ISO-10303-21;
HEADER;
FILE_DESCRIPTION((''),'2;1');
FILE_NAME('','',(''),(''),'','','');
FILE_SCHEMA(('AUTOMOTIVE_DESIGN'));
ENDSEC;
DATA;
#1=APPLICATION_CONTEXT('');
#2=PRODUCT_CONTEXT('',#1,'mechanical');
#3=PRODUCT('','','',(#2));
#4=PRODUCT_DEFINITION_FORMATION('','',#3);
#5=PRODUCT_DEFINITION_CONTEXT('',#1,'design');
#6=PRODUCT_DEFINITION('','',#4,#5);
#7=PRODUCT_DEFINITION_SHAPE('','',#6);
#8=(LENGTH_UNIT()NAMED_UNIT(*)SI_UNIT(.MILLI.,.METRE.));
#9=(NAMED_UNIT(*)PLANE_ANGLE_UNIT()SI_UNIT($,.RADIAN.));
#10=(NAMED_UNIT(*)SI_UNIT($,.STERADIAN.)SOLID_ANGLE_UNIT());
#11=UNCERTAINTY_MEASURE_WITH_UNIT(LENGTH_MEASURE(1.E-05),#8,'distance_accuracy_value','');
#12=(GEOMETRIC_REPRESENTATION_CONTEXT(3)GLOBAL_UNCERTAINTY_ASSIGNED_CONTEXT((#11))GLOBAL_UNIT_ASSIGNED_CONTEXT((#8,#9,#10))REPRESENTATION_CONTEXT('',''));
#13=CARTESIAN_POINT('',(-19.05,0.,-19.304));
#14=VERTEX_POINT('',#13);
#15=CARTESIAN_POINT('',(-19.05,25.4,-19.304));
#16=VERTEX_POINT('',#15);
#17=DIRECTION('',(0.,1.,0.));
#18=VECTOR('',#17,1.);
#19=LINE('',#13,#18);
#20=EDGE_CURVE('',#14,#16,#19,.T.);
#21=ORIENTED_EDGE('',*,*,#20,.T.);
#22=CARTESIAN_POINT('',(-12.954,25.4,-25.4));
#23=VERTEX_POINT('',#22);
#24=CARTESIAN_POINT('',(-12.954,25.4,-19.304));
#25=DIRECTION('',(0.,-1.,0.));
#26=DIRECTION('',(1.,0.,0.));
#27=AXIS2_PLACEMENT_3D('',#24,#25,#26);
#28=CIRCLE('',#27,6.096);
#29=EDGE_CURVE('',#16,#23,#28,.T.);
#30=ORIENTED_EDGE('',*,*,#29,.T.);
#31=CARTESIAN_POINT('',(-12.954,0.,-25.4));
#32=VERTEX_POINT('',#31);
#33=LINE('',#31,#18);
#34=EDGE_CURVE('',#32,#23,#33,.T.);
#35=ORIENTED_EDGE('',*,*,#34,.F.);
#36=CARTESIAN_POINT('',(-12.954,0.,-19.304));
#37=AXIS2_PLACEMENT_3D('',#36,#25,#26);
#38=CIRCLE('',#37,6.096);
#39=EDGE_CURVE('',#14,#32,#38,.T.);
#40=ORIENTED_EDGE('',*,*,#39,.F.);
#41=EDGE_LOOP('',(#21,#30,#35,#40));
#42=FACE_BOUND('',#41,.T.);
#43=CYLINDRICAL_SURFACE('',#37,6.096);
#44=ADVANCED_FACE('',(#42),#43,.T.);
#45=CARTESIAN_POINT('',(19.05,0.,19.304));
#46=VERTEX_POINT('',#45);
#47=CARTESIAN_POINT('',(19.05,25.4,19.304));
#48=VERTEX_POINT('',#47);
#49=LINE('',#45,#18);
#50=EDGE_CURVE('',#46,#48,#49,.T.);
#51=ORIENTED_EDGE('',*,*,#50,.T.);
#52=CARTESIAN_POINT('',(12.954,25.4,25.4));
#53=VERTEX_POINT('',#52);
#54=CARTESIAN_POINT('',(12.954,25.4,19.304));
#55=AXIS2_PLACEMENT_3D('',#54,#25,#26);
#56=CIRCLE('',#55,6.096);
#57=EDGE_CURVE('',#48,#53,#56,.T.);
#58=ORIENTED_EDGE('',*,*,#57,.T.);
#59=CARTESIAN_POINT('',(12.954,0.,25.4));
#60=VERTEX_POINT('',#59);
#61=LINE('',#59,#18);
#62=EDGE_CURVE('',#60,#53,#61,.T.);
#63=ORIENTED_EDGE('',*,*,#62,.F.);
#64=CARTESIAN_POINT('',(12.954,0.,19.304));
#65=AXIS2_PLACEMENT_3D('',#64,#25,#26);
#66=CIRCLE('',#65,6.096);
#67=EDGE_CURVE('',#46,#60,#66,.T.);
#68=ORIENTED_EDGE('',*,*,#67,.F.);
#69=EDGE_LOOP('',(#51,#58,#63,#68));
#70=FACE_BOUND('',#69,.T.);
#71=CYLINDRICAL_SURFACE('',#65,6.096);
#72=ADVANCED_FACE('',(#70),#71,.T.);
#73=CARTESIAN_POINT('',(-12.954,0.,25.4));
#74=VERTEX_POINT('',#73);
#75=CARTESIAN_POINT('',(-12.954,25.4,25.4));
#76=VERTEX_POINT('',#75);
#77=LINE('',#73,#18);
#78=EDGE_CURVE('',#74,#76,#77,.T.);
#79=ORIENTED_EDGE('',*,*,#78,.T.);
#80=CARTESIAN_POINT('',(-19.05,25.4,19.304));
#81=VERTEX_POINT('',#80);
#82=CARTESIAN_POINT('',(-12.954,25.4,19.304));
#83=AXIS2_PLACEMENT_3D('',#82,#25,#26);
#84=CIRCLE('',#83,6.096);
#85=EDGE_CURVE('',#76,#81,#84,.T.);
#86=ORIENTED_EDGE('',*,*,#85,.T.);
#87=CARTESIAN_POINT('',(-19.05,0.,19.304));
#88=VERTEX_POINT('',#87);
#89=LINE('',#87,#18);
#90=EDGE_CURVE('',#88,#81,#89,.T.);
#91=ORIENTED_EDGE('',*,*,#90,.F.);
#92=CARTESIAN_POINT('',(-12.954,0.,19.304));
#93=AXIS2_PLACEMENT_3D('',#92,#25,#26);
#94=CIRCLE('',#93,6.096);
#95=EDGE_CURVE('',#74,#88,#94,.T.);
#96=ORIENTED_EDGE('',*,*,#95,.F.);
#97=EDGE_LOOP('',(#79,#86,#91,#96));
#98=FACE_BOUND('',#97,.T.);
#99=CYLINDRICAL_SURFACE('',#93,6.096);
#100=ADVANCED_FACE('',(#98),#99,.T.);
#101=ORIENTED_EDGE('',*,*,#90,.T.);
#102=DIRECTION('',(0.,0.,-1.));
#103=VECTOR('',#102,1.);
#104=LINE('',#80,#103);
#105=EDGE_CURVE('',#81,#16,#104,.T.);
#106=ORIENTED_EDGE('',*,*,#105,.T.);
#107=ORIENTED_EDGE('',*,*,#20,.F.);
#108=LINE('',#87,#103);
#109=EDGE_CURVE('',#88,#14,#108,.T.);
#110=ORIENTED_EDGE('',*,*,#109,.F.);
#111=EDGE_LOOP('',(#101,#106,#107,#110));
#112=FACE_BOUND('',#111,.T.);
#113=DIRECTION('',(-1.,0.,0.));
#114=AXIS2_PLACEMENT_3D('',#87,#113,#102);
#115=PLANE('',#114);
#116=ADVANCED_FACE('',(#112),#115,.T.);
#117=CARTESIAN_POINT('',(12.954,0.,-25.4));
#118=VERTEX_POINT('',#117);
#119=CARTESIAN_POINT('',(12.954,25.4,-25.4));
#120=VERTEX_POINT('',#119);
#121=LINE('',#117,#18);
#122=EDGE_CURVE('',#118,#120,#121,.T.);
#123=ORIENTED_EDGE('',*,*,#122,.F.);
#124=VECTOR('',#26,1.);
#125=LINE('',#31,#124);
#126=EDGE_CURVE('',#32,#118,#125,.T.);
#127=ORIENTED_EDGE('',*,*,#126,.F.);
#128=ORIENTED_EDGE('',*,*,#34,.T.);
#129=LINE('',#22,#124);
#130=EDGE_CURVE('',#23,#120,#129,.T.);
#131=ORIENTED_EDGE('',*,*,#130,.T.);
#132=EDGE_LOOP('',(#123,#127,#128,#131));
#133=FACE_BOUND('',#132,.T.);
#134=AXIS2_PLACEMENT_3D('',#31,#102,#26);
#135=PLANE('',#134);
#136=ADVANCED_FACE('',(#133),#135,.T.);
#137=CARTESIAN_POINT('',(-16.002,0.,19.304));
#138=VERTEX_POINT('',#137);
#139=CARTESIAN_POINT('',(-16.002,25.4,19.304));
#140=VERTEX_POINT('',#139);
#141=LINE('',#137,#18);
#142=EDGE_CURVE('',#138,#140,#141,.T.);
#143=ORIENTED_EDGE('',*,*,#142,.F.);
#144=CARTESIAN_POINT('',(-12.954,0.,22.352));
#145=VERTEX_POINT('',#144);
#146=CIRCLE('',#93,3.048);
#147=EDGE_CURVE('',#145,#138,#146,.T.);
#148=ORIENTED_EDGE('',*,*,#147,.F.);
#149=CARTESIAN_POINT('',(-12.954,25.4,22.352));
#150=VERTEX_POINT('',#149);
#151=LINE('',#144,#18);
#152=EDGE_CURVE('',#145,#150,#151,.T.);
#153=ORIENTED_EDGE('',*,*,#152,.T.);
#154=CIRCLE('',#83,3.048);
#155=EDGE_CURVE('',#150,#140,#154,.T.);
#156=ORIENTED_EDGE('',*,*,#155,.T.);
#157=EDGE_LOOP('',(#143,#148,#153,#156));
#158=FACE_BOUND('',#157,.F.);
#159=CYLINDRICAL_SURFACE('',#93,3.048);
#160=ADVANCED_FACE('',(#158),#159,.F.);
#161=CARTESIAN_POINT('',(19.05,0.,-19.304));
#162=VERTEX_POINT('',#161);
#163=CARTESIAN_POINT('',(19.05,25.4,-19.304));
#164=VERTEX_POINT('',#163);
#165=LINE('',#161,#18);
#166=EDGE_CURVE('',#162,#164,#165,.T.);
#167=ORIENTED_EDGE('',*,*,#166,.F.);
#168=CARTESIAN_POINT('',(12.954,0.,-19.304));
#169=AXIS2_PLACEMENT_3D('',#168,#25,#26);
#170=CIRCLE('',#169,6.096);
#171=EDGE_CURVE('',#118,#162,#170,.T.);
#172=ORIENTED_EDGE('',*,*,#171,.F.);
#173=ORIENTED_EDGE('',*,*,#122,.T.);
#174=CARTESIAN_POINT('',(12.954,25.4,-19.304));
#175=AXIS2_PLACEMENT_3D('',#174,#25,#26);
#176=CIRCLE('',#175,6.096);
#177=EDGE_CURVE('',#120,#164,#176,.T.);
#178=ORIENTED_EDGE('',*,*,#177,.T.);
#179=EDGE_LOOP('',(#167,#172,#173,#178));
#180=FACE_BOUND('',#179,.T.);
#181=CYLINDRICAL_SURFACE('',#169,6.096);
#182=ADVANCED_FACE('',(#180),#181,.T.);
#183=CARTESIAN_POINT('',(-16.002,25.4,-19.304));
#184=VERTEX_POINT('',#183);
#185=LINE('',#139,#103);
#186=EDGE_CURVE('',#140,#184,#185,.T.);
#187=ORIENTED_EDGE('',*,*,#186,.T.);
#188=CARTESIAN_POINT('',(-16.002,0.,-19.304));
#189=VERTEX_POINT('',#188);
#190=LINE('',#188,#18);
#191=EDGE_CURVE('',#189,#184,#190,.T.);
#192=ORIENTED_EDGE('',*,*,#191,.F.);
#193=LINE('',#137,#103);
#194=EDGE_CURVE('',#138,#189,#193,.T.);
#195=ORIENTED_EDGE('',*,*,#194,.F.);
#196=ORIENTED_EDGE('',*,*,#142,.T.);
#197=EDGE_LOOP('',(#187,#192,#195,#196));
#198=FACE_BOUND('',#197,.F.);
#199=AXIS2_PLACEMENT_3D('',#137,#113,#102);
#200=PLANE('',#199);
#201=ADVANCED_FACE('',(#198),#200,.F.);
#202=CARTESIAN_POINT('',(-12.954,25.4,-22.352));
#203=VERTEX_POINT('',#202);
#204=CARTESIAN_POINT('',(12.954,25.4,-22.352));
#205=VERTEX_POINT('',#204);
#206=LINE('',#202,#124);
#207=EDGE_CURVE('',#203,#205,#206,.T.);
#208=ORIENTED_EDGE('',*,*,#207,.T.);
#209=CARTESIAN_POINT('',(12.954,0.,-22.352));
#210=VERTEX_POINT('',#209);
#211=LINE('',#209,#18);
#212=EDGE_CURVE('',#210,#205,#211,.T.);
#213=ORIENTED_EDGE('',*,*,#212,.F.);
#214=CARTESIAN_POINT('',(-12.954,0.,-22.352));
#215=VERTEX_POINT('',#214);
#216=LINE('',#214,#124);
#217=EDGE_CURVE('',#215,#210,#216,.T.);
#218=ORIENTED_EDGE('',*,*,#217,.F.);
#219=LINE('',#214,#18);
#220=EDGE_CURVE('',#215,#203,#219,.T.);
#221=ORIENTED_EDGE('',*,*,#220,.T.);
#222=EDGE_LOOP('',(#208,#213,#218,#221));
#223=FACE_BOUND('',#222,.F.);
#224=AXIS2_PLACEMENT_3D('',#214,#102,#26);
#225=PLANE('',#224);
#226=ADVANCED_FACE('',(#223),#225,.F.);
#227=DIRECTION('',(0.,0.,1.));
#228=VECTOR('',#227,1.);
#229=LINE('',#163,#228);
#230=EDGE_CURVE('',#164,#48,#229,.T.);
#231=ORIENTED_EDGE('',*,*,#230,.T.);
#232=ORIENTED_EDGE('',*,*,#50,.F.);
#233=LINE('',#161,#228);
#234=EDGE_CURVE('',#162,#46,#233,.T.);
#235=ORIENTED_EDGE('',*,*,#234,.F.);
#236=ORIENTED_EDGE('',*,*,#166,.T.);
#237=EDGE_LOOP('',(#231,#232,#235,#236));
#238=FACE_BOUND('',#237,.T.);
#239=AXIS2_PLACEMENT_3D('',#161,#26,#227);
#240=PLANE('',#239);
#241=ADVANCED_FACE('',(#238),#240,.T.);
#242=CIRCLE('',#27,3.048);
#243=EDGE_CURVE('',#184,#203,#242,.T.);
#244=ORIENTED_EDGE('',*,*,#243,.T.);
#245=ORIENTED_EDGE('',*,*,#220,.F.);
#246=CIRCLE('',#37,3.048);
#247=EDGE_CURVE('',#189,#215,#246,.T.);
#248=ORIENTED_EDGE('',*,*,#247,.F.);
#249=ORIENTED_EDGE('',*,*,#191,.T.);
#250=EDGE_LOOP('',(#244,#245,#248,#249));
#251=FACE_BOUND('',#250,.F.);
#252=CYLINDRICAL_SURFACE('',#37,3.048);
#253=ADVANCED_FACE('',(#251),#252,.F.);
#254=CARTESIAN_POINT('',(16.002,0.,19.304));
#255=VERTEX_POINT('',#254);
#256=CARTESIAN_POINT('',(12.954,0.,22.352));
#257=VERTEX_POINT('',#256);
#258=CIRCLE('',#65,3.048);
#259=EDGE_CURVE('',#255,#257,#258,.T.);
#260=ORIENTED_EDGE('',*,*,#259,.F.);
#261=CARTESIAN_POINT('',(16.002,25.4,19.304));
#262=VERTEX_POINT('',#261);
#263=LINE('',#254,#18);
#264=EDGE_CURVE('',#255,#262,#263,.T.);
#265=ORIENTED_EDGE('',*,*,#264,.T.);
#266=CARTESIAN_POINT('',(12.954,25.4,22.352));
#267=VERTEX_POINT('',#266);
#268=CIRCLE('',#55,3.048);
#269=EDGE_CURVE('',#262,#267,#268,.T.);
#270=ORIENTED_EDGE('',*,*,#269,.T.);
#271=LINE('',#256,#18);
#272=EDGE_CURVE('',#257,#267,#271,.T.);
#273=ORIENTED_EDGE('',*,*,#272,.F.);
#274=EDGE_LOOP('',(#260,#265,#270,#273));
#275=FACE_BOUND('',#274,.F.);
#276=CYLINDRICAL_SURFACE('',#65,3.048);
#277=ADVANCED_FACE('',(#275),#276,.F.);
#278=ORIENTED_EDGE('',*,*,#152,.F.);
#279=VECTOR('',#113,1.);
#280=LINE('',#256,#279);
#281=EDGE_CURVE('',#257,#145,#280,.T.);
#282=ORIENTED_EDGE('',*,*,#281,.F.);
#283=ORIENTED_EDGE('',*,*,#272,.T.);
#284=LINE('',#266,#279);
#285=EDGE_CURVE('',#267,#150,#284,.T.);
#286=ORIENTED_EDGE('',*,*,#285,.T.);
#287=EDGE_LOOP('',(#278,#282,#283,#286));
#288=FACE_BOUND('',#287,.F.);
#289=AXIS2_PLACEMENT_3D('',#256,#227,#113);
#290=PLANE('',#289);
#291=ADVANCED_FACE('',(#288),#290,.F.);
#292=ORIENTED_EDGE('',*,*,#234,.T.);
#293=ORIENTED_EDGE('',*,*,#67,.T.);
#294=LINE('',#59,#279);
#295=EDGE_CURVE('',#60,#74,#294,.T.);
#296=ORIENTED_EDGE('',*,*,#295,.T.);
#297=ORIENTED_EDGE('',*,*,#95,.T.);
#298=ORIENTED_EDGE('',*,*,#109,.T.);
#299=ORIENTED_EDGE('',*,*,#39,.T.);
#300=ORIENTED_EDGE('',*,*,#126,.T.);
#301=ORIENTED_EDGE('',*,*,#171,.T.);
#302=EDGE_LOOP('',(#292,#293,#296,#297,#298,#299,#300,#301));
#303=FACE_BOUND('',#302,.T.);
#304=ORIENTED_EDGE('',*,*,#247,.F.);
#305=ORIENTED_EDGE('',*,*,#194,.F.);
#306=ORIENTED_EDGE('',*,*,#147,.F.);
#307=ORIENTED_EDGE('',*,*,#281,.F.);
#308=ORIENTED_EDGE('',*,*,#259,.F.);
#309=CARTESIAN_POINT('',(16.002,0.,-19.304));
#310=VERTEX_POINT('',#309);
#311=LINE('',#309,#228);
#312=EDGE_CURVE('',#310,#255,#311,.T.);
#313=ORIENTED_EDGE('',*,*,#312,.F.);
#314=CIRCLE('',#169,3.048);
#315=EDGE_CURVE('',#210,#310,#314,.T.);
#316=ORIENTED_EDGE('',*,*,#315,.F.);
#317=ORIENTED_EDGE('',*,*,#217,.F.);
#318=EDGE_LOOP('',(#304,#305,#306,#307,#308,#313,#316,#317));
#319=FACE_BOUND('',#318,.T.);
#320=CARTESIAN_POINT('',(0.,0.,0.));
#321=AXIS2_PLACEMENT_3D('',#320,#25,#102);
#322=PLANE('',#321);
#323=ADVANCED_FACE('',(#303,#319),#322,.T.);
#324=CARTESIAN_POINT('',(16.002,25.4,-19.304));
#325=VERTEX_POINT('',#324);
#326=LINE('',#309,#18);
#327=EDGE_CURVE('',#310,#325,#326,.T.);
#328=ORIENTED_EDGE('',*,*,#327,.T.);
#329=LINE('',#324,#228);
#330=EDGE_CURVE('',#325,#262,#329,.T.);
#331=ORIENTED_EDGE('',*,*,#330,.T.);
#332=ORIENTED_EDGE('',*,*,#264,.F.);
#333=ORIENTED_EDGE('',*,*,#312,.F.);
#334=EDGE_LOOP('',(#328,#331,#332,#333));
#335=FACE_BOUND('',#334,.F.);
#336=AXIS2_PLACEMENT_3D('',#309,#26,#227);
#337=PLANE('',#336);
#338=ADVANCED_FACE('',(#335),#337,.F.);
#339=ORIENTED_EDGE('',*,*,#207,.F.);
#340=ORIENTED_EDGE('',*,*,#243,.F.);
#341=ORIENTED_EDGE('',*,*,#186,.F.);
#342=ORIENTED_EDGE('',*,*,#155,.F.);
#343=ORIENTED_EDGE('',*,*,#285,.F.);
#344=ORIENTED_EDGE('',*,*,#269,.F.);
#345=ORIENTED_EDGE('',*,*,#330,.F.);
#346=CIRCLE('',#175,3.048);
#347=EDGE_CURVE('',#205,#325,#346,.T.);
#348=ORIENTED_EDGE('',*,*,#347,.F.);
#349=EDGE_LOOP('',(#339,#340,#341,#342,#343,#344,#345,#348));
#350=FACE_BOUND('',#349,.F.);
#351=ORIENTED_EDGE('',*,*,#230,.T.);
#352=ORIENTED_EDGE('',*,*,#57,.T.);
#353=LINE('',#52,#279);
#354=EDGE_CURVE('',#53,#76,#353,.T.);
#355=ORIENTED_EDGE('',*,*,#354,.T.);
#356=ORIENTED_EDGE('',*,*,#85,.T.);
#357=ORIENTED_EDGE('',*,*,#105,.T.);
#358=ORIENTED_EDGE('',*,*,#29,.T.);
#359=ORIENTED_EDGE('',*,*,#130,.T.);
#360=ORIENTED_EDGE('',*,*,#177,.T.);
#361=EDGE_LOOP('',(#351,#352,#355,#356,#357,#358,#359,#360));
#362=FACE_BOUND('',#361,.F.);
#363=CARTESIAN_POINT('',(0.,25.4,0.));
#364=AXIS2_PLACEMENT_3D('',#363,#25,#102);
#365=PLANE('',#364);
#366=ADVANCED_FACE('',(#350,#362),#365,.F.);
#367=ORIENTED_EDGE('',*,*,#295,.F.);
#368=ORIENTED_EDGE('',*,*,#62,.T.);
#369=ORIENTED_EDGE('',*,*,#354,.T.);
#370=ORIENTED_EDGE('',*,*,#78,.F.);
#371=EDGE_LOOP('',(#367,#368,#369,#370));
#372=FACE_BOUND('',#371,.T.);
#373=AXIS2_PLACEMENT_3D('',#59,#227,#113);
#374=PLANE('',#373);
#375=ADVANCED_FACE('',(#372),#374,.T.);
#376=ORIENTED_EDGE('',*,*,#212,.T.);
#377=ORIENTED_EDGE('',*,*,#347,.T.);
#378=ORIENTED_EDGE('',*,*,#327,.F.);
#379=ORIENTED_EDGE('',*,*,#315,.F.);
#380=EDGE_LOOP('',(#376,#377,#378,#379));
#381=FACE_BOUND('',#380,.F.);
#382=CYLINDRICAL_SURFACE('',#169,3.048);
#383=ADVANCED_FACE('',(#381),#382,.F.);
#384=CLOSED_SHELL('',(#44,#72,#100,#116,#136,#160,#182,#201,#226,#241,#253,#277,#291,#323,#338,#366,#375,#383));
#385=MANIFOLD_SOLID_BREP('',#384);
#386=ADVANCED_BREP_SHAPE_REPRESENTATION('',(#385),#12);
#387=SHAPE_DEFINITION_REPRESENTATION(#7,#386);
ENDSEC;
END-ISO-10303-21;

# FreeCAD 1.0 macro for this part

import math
import FreeCAD as App
import Part
import Sketcher

V = App.Vector
Q = App.Units.Quantity

doc = App.newDocument("Part")
body = doc.addObject("PartDesign::Body", "Body")

# Sketch on XZ plane
sketch1 = doc.addObject("Sketcher::SketchObject", "Sketch")
body.addObject(sketch1)
sketch1.AttachmentSupport = (doc.XZ_Plane, [""])
sketch1.MapMode = "FlatFace"
sketch1.addGeometry(Part.LineSegment(V(-19.05, 19.304, 0), V(-19.05, -19.304, 0)), False)
sketch1.addGeometry(Part.ArcOfCircle(Part.Circle(V(-12.954, -19.304, 0), V(0, 0, 1), 6.096), math.radians(180), math.radians(270)), False)
sketch1.addGeometry(Part.LineSegment(V(-12.954, -25.4, 0), V(12.954, -25.4, 0)), False)
sketch1.addGeometry(Part.ArcOfCircle(Part.Circle(V(12.954, -19.304, 0), V(0, 0, 1), 6.096), math.radians(-90), math.radians(0)), False)
sketch1.addGeometry(Part.LineSegment(V(19.05, -19.304, 0), V(19.05, 19.304, 0)), False)
sketch1.addGeometry(Part.ArcOfCircle(Part.Circle(V(12.954, 19.304, 0), V(0, 0, 1), 6.096), math.radians(0), math.radians(90)), False)
sketch1.addGeometry(Part.LineSegment(V(12.954, 25.4, 0), V(-12.954, 25.4, 0)), False)
sketch1.addGeometry(Part.ArcOfCircle(Part.Circle(V(-12.954, 19.304, 0), V(0, 0, 1), 6.096), math.radians(90), math.radians(180)), False)
sketch1.addGeometry(Part.LineSegment(V(-16.002, -19.304, 0), V(-16.002, 19.304, 0)), False)
sketch1.addGeometry(Part.ArcOfCircle(Part.Circle(V(-12.954, 19.304, 0), V(0, 0, 1), 3.048), math.radians(90), math.radians(180)), False)
sketch1.addGeometry(Part.LineSegment(V(-12.954, 22.352, 0), V(12.954, 22.352, 0)), False)
sketch1.addGeometry(Part.ArcOfCircle(Part.Circle(V(12.954, 19.304, 0), V(0, 0, 1), 3.048), math.radians(0), math.radians(90)), False)
sketch1.addGeometry(Part.LineSegment(V(16.002, 19.304, 0), V(16.002, -19.304, 0)), False)
sketch1.addGeometry(Part.ArcOfCircle(Part.Circle(V(12.954, -19.304, 0), V(0, 0, 1), 3.048), math.radians(-90), math.radians(0)), False)
sketch1.addGeometry(Part.LineSegment(V(12.954, -22.352, 0), V(-12.954, -22.352, 0)), False)
sketch1.addGeometry(Part.ArcOfCircle(Part.Circle(V(-12.954, -19.304, 0), V(0, 0, 1), 3.048), math.radians(180), math.radians(270)), False)
sketch1.addConstraint(Sketcher.Constraint("Tangent", 0, 2, 1, 1))
sketch1.addConstraint(Sketcher.Constraint("Tangent", 1, 2, 2, 1))
sketch1.addConstraint(Sketcher.Constraint("Tangent", 2, 2, 3, 1))
sketch1.addConstraint(Sketcher.Constraint("Tangent", 3, 2, 4, 1))
sketch1.addConstraint(Sketcher.Constraint("Tangent", 4, 2, 5, 1))
sketch1.addConstraint(Sketcher.Constraint("Tangent", 5, 2, 6, 1))
sketch1.addConstraint(Sketcher.Constraint("Tangent", 6, 2, 7, 1))
sketch1.addConstraint(Sketcher.Constraint("Tangent", 7, 2, 0, 1))
sketch1.addConstraint(Sketcher.Constraint("Tangent", 8, 2, 9, 2))
sketch1.addConstraint(Sketcher.Constraint("Tangent", 9, 1, 10, 1))
sketch1.addConstraint(Sketcher.Constraint("Tangent", 10, 2, 11, 2))
sketch1.addConstraint(Sketcher.Constraint("Tangent", 11, 1, 12, 1))
sketch1.addConstraint(Sketcher.Constraint("Tangent", 12, 2, 13, 2))
sketch1.addConstraint(Sketcher.Constraint("Tangent", 13, 1, 14, 1))
sketch1.addConstraint(Sketcher.Constraint("Tangent", 14, 2, 15, 2))
sketch1.addConstraint(Sketcher.Constraint("Tangent", 15, 1, 8, 1))
sketch1.addConstraint(Sketcher.Constraint("Vertical", 0))
sketch1.addConstraint(Sketcher.Constraint("Horizontal", 2))
sketch1.addConstraint(Sketcher.Constraint("Vertical", 4))
sketch1.addConstraint(Sketcher.Constraint("Horizontal", 6))
sketch1.addConstraint(Sketcher.Constraint("Vertical", 8))
sketch1.addConstraint(Sketcher.Constraint("Horizontal", 10))
sketch1.addConstraint(Sketcher.Constraint("Vertical", 12))
sketch1.addConstraint(Sketcher.Constraint("Horizontal", 14))
sketch1.addConstraint(Sketcher.Constraint("Coincident", 9, 3, 7, 3))
sketch1.addConstraint(Sketcher.Constraint("Coincident", 11, 3, 5, 3))
sketch1.addConstraint(Sketcher.Constraint("Coincident", 13, 3, 3, 3))
sketch1.addConstraint(Sketcher.Constraint("Equal", 1, 3))
sketch1.addConstraint(Sketcher.Constraint("Equal", 3, 5))
sketch1.addConstraint(Sketcher.Constraint("Equal", 5, 7))
sketch1.addConstraint(Sketcher.Constraint("Equal", 13, 15))
sketch1.addConstraint(Sketcher.Constraint("Symmetric", 1, 3, 5, 3, -1, 1))
sketch1.addConstraint(Sketcher.Constraint("Radius", 1, Q("0.24 in")))
sketch1.addConstraint(Sketcher.Constraint("Radius", 9, Q("0.12 in")))
sketch1.addConstraint(Sketcher.Constraint("DistanceY", 1, 2, -1, 1, Q("1 in")))
sketch1.addConstraint(Sketcher.Constraint("DistanceX", 2, 1, 2, 2, Q("1.02 in")))
pad1 = doc.addObject("PartDesign::Pad", "Pad")
body.addObject(pad1)
pad1.Profile = sketch1
pad1.Length = Q("1 in")
pad1.Reversed = True

doc.recompute()
